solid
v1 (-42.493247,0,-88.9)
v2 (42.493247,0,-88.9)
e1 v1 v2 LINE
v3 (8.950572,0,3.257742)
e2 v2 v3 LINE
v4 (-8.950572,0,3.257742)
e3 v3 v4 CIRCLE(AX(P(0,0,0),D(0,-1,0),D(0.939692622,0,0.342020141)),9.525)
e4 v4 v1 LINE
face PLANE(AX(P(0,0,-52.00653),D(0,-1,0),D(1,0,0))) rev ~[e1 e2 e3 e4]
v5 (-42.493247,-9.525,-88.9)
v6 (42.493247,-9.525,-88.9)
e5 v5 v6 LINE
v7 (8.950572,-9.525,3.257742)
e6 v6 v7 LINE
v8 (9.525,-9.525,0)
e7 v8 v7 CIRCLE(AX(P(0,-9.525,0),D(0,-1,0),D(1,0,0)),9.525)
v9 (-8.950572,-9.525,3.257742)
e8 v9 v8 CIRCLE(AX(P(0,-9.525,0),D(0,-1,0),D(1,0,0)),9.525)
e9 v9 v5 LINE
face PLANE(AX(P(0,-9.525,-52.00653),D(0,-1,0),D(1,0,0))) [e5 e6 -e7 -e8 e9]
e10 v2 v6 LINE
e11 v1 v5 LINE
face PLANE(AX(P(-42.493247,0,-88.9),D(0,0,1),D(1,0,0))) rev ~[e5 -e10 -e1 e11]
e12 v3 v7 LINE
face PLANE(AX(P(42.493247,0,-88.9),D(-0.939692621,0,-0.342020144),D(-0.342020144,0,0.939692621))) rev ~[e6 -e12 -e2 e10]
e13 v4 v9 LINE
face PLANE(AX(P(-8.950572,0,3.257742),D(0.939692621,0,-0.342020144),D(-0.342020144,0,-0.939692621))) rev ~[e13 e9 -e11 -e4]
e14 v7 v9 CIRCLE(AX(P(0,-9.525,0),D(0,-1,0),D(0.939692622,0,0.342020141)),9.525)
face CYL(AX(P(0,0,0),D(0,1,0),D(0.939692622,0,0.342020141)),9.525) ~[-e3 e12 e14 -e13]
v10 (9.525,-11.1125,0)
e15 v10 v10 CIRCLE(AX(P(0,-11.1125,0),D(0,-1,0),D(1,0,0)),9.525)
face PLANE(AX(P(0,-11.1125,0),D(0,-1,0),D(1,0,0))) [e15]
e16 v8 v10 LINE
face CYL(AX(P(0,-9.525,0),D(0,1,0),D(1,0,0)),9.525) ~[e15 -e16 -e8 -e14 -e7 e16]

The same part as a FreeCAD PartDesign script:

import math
import FreeCAD as App
import Part
import Sketcher
Q = App.Units.Quantity

doc = App.newDocument("Part")
body = doc.addObject("PartDesign::Body", "Body")

# Sketch on XZ plane
sketch1 = doc.addObject("Sketcher::SketchObject", "Sketch")
body.addObject(sketch1)
sketch1.AttachmentSupport = (doc.XZ_Plane, [""])
sketch1.MapMode = "FlatFace"
sketch1.addGeometry([
    Part.LineSegment(App.Vector(42, -89, 0), App.Vector(9, 3, 0)),
    Part.ArcOfCircle(Part.Circle(App.Vector(0, 0, 0), App.Vector(0, 0, 1), 10), math.radians(20), math.radians(160)),
    Part.LineSegment(App.Vector(-9, 3, 0), App.Vector(-42, -89, 0)),
    Part.LineSegment(App.Vector(-42, -89, 0), App.Vector(42, -89, 0)),
], False)
sketch1.addConstraint([
    Sketcher.Constraint("Tangent", 0, 2, 1, 1),
    Sketcher.Constraint("Tangent", 1, 2, 2, 1),
    Sketcher.Constraint("Coincident", 2, 2, 3, 1),
    Sketcher.Constraint("Coincident", 3, 2, 0, 1),
    Sketcher.Constraint("Horizontal", 3),
    Sketcher.Constraint("Coincident", 1, 3, -1, 1),
    Sketcher.Constraint("Horizontal", 0, 2, 1, 2),
    Sketcher.Constraint("Angle", 0, Q("110 deg")),
    Sketcher.Constraint("Radius", 1, Q("0.375 in")),
    Sketcher.Constraint("DistanceY", 2, 2, -1, 1, Q("3.5 in")),
])
pad1 = doc.addObject("PartDesign::Pad", "Pad")
body.addObject(pad1)
pad1.Profile = sketch1
pad1.Length = Q("0.375 in")

# Sketch on XZ plane
sketch2 = doc.addObject("Sketcher::SketchObject", "Sketch001")
body.addObject(sketch2)
sketch2.AttachmentSupport = (doc.XZ_Plane, [""])
sketch2.MapMode = "FlatFace"
sketch2.AttachmentOffset = App.Placement(App.Vector(0, 0, 0.375 * 25.4), App.Rotation())
sketch2.addGeometry(Part.Circle(App.Vector(0, 0, 0), App.Vector(0, 0, 1), 10), False)
sketch2.addConstraint([
    Sketcher.Constraint("Coincident", 0, 3, -1, 1),
    Sketcher.Constraint("Diameter", 0, Q("0.75 in")),
])
pad2 = doc.addObject("PartDesign::Pad", "Pad001")
body.addObject(pad2)
pad2.Profile = sketch2
pad2.Length = Q("0.0625 in")

doc.recompute()
